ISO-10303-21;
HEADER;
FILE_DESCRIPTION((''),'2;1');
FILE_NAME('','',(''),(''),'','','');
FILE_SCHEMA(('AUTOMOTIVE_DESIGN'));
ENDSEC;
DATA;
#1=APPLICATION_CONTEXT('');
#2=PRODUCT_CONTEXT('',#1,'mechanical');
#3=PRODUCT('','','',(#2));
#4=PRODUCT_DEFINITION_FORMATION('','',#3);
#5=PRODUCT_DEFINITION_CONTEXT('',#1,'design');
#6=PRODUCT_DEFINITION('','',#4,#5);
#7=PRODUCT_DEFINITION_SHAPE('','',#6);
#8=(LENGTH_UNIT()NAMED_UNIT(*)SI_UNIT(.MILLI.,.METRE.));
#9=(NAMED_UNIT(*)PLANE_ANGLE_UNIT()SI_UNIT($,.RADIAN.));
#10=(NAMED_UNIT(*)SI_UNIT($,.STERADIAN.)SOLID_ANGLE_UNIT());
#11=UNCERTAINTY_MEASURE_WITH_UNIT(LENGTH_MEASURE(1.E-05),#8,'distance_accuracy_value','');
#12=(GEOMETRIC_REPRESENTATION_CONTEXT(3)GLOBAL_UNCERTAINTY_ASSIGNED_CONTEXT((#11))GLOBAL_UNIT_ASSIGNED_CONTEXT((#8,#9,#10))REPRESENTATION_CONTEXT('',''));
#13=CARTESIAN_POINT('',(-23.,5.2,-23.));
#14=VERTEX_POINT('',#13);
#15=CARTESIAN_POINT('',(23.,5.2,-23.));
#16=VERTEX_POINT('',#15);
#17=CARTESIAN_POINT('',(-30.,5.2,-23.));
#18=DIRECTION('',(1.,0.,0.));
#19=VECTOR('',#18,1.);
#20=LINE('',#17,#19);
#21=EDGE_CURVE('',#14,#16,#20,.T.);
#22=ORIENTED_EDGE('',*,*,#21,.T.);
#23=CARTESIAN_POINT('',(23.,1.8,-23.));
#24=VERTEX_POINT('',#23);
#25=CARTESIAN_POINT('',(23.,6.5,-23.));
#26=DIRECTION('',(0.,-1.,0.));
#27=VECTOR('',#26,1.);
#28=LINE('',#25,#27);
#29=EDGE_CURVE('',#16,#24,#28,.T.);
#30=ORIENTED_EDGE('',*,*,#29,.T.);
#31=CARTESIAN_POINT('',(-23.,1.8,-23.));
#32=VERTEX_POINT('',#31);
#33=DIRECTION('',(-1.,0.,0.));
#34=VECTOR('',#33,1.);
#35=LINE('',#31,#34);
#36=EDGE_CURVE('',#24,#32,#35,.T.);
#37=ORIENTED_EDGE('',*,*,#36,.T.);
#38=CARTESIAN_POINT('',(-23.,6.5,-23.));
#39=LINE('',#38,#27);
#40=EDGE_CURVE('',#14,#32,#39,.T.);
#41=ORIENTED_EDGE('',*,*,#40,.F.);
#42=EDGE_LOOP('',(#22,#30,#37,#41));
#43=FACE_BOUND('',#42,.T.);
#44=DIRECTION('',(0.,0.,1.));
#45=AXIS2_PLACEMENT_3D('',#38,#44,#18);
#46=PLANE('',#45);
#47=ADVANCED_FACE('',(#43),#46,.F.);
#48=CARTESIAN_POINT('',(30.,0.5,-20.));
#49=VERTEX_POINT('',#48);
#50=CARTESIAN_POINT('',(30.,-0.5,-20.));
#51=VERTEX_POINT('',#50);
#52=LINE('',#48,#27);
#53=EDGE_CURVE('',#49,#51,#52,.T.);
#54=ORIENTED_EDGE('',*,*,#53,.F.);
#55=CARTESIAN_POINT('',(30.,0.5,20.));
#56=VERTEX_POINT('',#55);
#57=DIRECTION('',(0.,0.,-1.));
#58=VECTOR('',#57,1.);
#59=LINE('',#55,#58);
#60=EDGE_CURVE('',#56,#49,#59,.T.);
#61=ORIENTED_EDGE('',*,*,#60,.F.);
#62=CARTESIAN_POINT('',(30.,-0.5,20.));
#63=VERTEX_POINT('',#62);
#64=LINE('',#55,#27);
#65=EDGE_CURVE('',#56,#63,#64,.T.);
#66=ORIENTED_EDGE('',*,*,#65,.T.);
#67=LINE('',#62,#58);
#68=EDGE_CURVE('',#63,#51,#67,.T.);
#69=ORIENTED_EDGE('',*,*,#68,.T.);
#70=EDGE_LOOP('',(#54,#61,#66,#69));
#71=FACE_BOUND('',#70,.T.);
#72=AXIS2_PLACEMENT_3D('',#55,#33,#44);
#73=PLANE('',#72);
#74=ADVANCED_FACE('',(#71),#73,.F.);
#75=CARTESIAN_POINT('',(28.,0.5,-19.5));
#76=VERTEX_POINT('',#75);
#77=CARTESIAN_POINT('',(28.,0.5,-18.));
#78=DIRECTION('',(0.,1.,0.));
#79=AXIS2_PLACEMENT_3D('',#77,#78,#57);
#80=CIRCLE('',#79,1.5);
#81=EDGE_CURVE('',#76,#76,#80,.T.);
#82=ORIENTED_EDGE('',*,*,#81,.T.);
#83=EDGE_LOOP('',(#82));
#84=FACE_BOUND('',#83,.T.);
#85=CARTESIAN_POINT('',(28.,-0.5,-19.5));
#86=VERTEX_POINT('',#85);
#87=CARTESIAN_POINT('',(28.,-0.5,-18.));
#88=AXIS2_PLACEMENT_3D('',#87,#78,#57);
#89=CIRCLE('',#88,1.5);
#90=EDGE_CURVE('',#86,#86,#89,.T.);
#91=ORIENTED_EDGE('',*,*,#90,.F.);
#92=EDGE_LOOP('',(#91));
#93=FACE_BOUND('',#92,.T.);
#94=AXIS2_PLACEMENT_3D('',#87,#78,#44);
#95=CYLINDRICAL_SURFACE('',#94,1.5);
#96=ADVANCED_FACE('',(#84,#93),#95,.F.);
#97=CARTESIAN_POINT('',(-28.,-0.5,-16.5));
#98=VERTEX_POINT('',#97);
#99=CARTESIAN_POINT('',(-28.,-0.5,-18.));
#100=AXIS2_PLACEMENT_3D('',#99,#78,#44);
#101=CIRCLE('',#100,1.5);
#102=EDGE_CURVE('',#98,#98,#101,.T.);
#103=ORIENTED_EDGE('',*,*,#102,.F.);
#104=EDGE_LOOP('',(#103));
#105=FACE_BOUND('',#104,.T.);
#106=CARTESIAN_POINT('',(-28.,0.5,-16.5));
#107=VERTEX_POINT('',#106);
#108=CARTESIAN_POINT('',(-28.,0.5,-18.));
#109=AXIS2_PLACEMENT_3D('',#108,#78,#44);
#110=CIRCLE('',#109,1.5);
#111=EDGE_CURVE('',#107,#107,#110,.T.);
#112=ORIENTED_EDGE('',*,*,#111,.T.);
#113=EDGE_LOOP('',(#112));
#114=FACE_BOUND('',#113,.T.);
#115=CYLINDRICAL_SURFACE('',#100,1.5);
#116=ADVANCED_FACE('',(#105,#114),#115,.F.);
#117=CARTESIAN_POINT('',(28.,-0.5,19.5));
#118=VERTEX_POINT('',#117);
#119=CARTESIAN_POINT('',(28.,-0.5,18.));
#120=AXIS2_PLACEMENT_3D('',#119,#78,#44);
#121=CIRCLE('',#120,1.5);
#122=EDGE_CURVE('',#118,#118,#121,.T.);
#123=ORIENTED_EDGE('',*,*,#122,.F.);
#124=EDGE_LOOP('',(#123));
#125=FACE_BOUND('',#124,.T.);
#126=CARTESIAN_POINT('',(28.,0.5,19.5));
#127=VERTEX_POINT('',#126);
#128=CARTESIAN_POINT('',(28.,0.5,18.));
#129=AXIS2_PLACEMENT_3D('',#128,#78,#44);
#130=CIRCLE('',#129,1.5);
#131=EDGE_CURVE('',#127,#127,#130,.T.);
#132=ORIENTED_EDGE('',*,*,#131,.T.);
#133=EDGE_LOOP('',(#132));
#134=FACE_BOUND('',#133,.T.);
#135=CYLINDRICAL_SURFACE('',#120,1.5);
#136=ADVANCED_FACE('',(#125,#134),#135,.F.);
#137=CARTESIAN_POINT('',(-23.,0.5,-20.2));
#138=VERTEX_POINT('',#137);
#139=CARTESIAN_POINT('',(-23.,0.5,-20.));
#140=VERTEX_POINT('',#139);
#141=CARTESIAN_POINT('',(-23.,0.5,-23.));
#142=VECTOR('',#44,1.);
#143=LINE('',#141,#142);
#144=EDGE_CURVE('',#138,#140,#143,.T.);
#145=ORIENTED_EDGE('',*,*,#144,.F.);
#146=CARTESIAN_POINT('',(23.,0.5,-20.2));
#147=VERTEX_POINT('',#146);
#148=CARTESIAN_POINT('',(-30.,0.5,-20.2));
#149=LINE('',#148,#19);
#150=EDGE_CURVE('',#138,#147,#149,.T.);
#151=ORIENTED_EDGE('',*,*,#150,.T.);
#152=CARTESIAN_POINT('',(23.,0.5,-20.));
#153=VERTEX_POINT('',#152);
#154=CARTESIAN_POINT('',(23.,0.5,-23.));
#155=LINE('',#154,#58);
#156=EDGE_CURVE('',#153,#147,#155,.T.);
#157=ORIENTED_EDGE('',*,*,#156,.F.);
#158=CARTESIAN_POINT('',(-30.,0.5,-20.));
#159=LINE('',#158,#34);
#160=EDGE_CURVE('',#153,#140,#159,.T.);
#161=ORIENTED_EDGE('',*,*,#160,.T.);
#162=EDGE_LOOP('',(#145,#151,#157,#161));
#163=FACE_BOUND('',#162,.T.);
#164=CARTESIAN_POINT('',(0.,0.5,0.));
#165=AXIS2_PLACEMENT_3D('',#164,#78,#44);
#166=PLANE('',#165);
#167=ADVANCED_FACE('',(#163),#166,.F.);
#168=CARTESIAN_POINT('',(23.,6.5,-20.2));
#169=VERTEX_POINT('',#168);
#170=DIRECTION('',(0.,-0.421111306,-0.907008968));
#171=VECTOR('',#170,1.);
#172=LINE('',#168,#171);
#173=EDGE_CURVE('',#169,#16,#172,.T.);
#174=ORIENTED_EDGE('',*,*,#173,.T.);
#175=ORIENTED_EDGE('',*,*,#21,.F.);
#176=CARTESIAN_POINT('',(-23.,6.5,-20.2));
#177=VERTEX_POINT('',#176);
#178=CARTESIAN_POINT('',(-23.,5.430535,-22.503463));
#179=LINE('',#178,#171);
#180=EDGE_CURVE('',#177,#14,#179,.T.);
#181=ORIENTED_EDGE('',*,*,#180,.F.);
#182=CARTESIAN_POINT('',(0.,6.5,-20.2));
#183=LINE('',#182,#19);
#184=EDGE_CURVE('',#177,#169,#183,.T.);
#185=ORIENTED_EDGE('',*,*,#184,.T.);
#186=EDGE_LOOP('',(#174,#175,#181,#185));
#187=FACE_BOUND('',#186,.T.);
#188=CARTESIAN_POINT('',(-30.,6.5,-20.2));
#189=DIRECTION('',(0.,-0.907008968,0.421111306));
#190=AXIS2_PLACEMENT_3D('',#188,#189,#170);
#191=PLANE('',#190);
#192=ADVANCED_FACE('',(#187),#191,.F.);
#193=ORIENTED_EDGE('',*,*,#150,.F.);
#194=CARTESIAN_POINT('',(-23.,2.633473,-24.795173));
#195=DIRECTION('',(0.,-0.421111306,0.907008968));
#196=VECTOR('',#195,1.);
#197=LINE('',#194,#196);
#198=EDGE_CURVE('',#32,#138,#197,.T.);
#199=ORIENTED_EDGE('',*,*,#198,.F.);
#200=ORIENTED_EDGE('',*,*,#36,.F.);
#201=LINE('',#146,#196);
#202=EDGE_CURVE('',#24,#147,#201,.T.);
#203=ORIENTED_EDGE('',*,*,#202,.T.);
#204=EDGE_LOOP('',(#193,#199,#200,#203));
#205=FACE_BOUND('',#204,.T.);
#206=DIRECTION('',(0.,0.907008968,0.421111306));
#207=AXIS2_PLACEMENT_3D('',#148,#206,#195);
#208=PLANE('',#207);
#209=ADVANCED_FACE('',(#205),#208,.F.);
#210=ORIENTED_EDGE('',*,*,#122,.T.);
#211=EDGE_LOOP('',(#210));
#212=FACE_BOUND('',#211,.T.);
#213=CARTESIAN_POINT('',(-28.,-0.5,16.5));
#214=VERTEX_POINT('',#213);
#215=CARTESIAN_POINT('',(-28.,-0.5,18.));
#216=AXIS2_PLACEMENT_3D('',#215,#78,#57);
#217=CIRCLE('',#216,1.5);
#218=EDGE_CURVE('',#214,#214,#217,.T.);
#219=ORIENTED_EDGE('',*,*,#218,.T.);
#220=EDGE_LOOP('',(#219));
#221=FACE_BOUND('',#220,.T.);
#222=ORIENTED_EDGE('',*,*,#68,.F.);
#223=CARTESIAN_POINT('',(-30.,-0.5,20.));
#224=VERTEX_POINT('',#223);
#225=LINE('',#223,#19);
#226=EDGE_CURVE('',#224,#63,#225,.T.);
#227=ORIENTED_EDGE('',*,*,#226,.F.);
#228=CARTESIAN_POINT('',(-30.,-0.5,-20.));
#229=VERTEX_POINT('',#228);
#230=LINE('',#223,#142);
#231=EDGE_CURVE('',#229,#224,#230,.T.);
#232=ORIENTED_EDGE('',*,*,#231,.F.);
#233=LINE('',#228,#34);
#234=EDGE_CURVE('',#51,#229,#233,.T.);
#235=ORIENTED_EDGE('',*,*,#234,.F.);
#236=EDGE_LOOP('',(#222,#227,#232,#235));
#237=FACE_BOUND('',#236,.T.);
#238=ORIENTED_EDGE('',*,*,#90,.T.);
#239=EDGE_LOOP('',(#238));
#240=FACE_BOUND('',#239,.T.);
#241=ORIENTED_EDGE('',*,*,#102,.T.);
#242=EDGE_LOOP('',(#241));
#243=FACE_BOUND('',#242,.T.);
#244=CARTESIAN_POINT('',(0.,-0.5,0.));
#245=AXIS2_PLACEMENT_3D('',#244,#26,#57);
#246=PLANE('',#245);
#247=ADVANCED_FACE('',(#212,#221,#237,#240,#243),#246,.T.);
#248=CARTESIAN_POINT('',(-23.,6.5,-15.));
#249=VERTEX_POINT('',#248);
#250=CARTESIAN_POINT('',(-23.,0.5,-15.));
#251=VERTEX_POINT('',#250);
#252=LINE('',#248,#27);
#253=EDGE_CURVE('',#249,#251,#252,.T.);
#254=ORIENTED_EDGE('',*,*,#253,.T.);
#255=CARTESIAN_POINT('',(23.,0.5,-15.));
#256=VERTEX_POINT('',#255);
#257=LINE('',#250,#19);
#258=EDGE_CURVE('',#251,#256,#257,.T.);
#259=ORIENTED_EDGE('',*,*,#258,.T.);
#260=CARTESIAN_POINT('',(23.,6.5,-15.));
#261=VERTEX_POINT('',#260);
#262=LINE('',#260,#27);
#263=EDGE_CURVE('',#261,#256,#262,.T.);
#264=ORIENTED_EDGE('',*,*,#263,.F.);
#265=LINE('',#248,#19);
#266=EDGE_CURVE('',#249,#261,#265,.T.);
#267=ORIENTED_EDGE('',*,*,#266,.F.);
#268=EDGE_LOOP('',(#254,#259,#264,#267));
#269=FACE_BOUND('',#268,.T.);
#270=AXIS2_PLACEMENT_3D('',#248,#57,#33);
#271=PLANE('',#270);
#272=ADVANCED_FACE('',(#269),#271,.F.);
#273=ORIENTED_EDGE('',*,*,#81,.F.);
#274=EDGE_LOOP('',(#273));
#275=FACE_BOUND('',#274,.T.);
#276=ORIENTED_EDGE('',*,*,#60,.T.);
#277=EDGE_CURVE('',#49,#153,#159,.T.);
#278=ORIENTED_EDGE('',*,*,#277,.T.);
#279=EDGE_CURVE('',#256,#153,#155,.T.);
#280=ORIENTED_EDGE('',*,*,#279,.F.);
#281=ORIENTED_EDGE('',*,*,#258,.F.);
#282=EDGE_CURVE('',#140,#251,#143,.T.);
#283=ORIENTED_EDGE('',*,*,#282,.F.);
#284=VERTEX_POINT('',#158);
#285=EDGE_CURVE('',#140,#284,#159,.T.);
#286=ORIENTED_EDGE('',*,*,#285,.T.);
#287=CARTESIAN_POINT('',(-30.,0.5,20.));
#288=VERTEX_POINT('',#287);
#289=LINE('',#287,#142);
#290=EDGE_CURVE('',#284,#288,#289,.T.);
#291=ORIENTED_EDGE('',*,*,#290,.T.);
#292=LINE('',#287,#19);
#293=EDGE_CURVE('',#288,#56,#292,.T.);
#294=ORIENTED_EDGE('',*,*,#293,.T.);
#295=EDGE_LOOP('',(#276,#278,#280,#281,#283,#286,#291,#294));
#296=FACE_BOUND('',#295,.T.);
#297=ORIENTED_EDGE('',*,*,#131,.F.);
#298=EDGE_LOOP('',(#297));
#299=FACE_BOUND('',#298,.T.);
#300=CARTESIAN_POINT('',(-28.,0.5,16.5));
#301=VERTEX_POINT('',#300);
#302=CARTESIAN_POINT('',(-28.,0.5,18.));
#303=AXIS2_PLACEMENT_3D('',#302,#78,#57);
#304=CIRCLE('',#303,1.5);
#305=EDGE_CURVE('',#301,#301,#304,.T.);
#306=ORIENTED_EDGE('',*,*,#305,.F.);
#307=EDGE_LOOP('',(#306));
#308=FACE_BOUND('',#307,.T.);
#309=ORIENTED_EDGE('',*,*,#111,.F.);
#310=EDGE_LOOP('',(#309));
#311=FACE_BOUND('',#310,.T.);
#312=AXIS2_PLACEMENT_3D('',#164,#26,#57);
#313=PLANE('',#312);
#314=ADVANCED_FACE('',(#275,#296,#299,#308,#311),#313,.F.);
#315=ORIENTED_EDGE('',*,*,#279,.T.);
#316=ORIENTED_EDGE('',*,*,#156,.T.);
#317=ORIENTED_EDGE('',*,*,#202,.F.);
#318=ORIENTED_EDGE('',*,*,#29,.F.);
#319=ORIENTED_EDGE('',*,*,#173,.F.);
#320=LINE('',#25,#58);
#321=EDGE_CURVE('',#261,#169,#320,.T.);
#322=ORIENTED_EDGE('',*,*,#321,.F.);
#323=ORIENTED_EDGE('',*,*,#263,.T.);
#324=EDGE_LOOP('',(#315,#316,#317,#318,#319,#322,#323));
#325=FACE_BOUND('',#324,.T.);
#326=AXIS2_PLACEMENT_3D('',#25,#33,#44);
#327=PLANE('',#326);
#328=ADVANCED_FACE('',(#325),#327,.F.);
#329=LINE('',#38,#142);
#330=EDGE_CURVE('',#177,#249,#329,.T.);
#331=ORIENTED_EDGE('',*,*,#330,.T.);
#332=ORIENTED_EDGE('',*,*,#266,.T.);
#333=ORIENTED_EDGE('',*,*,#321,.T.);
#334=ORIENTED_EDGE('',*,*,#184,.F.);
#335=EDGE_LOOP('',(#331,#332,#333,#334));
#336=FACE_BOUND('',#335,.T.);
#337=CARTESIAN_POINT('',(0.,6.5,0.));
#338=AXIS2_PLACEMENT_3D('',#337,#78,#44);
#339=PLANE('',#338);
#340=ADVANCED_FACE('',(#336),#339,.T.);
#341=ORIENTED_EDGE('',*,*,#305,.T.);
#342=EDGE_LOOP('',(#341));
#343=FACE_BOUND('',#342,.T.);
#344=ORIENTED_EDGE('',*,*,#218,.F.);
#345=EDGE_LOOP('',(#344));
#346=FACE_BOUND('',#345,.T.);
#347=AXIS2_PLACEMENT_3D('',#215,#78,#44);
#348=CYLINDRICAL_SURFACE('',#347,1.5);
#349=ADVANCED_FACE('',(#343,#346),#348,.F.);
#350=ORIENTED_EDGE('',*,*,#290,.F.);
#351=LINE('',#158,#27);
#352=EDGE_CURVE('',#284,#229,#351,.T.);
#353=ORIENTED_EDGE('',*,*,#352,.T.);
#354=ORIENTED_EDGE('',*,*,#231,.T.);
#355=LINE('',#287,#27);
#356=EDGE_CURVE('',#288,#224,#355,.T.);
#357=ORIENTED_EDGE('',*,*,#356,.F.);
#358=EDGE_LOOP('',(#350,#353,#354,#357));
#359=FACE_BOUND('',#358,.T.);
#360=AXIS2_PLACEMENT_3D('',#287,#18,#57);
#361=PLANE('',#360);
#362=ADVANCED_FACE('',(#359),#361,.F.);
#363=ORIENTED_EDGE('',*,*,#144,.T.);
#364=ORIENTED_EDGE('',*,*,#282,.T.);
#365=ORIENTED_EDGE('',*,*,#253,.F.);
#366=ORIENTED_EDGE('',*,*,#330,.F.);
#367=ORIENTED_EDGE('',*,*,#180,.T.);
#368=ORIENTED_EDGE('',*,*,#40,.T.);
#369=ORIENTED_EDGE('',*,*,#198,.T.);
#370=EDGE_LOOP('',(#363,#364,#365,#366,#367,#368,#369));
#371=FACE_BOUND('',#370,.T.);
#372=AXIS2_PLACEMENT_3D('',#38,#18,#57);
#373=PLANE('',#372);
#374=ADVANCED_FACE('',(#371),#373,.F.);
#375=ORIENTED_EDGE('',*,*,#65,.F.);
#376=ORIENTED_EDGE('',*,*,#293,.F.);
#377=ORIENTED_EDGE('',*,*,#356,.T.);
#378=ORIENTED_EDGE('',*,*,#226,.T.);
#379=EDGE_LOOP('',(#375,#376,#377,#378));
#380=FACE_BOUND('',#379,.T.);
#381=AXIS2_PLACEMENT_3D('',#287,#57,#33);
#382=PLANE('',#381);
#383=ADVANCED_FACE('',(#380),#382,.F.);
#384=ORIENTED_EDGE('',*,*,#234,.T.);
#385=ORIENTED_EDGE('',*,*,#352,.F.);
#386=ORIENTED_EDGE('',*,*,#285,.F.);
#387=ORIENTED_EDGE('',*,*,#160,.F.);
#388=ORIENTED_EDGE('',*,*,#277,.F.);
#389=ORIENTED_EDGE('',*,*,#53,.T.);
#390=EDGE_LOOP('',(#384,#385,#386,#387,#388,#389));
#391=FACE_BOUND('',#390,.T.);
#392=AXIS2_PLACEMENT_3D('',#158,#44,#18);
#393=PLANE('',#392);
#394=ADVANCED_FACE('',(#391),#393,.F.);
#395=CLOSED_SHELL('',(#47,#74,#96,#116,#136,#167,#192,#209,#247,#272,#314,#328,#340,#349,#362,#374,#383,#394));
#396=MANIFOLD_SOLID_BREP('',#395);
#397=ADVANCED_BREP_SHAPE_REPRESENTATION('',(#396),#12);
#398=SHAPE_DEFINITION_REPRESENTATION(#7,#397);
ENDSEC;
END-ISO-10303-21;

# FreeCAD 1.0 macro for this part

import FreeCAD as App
import Part
import Sketcher
Q = App.Units.Quantity

doc = App.newDocument("Part")
body = doc.addObject("PartDesign::Body", "Body")

# Sketch on XZ plane
sketch1 = body.newObject("Sketcher::SketchObject", "Sketch")
sketch1.AttachmentSupport = (doc.getObject("XZ_Plane"), [""])
sketch1.MapMode = "FlatFace"
sketch1.addGeometry([
    Part.LineSegment(App.Vector(-30, -20, 0), App.Vector(-30, 20, 0)),
    Part.LineSegment(App.Vector(-30, 20, 0), App.Vector(30, 20, 0)),
    Part.LineSegment(App.Vector(30, 20, 0), App.Vector(30, -20, 0)),
    Part.LineSegment(App.Vector(30, -20, 0), App.Vector(-30, -20, 0)),
], False)
sketch1.addConstraint([
    Sketcher.Constraint("Coincident", 0, 2, 1, 1),
    Sketcher.Constraint("Coincident", 1, 2, 2, 1),
    Sketcher.Constraint("Coincident", 2, 2, 3, 1),
    Sketcher.Constraint("Coincident", 3, 2, 0, 1),
    Sketcher.Constraint("Vertical", 0),
    Sketcher.Constraint("Horizontal", 1),
    Sketcher.Constraint("Vertical", 2),
    Sketcher.Constraint("Horizontal", 3),
    Sketcher.Constraint("Symmetric", 0, 2, 2, 2, -1, 1),
    Sketcher.Constraint("DistanceX", 1, 1, 1, 2, Q("60 mm")),
    Sketcher.Constraint("DistanceY", 0, 1, 0, 2, Q("40 mm")),
])
pad1 = body.newObject("PartDesign::Pad", "Pad")
pad1.Profile = sketch1
pad1.Length = 1
pad1.Midplane = True

# Sketch on XZ plane
sketch2 = body.newObject("Sketcher::SketchObject", "Sketch001")
sketch2.AttachmentSupport = (doc.getObject("XZ_Plane"), [""])
sketch2.MapMode = "FlatFace"
sketch2.AttachmentOffset = App.Placement(App.Vector(0, 0, -0.5), App.Rotation())
sketch2.addGeometry([
    Part.Circle(App.Vector(-28, -18, 0), App.Vector(0, 0, 1), 1.5),
    Part.Circle(App.Vector(28, -18, 0), App.Vector(0, 0, 1), 1.5),
    Part.Circle(App.Vector(28, 18, 0), App.Vector(0, 0, 1), 1.5),
    Part.Circle(App.Vector(-28, 18, 0), App.Vector(0, 0, 1), 1.5),
], False)
sketch2.addConstraint([
    Sketcher.Constraint("Equal", 0, 1),
    Sketcher.Constraint("Equal", 1, 2),
    Sketcher.Constraint("Equal", 2, 3),
    Sketcher.Constraint("Symmetric", 0, 3, 2, 3, -1, 1),
    Sketcher.Constraint("Symmetric", 1, 3, 3, 3, -1, 1),
    Sketcher.Constraint("Symmetric", 0, 3, 1, 3, -2),
    Sketcher.Constraint("Diameter", 0, Q("3 mm")),
    Sketcher.Constraint("DistanceX", 0, 3, -1, 1, Q("28 mm")),
    Sketcher.Constraint("DistanceY", 0, 3, -1, 1, Q("18 mm")),
])
pocket1 = body.newObject("PartDesign::Pocket", "Pocket")
pocket1.Profile = sketch2
pocket1.Length = 1
pocket1.Reversed = True

# Sketch on XZ plane
sketch3 = body.newObject("Sketcher::SketchObject", "Sketch002")
sketch3.AttachmentSupport = (doc.getObject("XZ_Plane"), [""])
sketch3.MapMode = "FlatFace"
sketch3.AttachmentOffset = App.Placement(App.Vector(0, 0, -0.5), App.Rotation())
sketch3.addGeometry([
    Part.LineSegment(App.Vector(-23, -23, 0), App.Vector(-23, -15, 0)),
    Part.LineSegment(App.Vector(-23, -15, 0), App.Vector(23, -15, 0)),
    Part.LineSegment(App.Vector(23, -15, 0), App.Vector(23, -23, 0)),
    Part.LineSegment(App.Vector(23, -23, 0), App.Vector(-23, -23, 0)),
], False)
sketch3.addConstraint([
    Sketcher.Constraint("Coincident", 0, 2, 1, 1),
    Sketcher.Constraint("Coincident", 1, 2, 2, 1),
    Sketcher.Constraint("Coincident", 2, 2, 3, 1),
    Sketcher.Constraint("Coincident", 3, 2, 0, 1),
    Sketcher.Constraint("Vertical", 0),
    Sketcher.Constraint("Horizontal", 1),
    Sketcher.Constraint("Vertical", 2),
    Sketcher.Constraint("Horizontal", 3),
    Sketcher.Constraint("DistanceX", 1, 1, 1, 2, Q("46 mm")),
    Sketcher.Constraint("DistanceY", 0, 1, 0, 2, Q("8 mm")),
    Sketcher.Constraint("DistanceX", 0, 2, -1, 1, Q("23 mm")),
    Sketcher.Constraint("DistanceY", 0, 2, -1, 1, Q("15 mm")),
])
pad2 = body.newObject("PartDesign::Pad", "Pad001")
pad2.Profile = sketch3
pad2.Length = 6
pad2.Reversed = True

# Sketch on YZ plane
sketch4 = body.newObject("Sketcher::SketchObject", "Sketch003")
sketch4.AttachmentSupport = (doc.getObject("YZ_Plane"), [""])
sketch4.MapMode = "FlatFace"
sketch4.AttachmentOffset = App.Placement(App.Vector(0, 0, 23), App.Rotation())
sketch4.addGeometry([
    Part.LineSegment(App.Vector(5.2, -23, 0), App.Vector(6.5, -23, 0)),  # 0
    Part.LineSegment(App.Vector(6.5, -23, 0), App.Vector(6.5, -20.2, 0)),  # 1
    Part.LineSegment(App.Vector(6.5, -20.2, 0), App.Vector(5.2, -23, 0)),  # 2
    Part.LineSegment(App.Vector(1.8, -23, 0), App.Vector(0.5, -20.2, 0)),  # 3
    Part.LineSegment(App.Vector(0.5, -20.2, 0), App.Vector(0.5, -23, 0)),  # 4
    Part.LineSegment(App.Vector(0.5, -23, 0), App.Vector(1.8, -23, 0)),  # 5
], False)
sketch4.addConstraint([
    Sketcher.Constraint("Coincident", 0, 2, 1, 1),
    Sketcher.Constraint("Coincident", 1, 2, 2, 1),
    Sketcher.Constraint("Coincident", 2, 2, 0, 1),
    Sketcher.Constraint("Coincident", 3, 2, 4, 1),
    Sketcher.Constraint("Coincident", 4, 2, 5, 1),
    Sketcher.Constraint("Coincident", 5, 2, 3, 1),
    Sketcher.Constraint("Horizontal", 0),
    Sketcher.Constraint("Vertical", 1),
    Sketcher.Constraint("Vertical", 4),
    Sketcher.Constraint("Horizontal", 5),
    Sketcher.Constraint("Horizontal", 1, 2, 3, 2),
    Sketcher.Constraint("Horizontal", 2, 2, 4, 2),
    Sketcher.Constraint("Equal", 0, 5),
    Sketcher.Constraint("DistanceX", 0, 1, 0, 2, Q("1.3 mm")),
    Sketcher.Constraint("DistanceY", 1, 1, 1, 2, Q("2.8 mm")),
    Sketcher.Constraint("DistanceY", 0, 2, -1, 1, Q("23 mm")),
    Sketcher.Constraint("DistanceX", 3, 2, 1, 2, Q("6 mm")),
    Sketcher.Constraint("DistanceX", -1, 1, 0, 2, Q("6.5 mm")),
])
pocket2 = body.newObject("PartDesign::Pocket", "Pocket001")
pocket2.Profile = sketch4
pocket2.Type = "ThroughAll"

doc.recompute()
